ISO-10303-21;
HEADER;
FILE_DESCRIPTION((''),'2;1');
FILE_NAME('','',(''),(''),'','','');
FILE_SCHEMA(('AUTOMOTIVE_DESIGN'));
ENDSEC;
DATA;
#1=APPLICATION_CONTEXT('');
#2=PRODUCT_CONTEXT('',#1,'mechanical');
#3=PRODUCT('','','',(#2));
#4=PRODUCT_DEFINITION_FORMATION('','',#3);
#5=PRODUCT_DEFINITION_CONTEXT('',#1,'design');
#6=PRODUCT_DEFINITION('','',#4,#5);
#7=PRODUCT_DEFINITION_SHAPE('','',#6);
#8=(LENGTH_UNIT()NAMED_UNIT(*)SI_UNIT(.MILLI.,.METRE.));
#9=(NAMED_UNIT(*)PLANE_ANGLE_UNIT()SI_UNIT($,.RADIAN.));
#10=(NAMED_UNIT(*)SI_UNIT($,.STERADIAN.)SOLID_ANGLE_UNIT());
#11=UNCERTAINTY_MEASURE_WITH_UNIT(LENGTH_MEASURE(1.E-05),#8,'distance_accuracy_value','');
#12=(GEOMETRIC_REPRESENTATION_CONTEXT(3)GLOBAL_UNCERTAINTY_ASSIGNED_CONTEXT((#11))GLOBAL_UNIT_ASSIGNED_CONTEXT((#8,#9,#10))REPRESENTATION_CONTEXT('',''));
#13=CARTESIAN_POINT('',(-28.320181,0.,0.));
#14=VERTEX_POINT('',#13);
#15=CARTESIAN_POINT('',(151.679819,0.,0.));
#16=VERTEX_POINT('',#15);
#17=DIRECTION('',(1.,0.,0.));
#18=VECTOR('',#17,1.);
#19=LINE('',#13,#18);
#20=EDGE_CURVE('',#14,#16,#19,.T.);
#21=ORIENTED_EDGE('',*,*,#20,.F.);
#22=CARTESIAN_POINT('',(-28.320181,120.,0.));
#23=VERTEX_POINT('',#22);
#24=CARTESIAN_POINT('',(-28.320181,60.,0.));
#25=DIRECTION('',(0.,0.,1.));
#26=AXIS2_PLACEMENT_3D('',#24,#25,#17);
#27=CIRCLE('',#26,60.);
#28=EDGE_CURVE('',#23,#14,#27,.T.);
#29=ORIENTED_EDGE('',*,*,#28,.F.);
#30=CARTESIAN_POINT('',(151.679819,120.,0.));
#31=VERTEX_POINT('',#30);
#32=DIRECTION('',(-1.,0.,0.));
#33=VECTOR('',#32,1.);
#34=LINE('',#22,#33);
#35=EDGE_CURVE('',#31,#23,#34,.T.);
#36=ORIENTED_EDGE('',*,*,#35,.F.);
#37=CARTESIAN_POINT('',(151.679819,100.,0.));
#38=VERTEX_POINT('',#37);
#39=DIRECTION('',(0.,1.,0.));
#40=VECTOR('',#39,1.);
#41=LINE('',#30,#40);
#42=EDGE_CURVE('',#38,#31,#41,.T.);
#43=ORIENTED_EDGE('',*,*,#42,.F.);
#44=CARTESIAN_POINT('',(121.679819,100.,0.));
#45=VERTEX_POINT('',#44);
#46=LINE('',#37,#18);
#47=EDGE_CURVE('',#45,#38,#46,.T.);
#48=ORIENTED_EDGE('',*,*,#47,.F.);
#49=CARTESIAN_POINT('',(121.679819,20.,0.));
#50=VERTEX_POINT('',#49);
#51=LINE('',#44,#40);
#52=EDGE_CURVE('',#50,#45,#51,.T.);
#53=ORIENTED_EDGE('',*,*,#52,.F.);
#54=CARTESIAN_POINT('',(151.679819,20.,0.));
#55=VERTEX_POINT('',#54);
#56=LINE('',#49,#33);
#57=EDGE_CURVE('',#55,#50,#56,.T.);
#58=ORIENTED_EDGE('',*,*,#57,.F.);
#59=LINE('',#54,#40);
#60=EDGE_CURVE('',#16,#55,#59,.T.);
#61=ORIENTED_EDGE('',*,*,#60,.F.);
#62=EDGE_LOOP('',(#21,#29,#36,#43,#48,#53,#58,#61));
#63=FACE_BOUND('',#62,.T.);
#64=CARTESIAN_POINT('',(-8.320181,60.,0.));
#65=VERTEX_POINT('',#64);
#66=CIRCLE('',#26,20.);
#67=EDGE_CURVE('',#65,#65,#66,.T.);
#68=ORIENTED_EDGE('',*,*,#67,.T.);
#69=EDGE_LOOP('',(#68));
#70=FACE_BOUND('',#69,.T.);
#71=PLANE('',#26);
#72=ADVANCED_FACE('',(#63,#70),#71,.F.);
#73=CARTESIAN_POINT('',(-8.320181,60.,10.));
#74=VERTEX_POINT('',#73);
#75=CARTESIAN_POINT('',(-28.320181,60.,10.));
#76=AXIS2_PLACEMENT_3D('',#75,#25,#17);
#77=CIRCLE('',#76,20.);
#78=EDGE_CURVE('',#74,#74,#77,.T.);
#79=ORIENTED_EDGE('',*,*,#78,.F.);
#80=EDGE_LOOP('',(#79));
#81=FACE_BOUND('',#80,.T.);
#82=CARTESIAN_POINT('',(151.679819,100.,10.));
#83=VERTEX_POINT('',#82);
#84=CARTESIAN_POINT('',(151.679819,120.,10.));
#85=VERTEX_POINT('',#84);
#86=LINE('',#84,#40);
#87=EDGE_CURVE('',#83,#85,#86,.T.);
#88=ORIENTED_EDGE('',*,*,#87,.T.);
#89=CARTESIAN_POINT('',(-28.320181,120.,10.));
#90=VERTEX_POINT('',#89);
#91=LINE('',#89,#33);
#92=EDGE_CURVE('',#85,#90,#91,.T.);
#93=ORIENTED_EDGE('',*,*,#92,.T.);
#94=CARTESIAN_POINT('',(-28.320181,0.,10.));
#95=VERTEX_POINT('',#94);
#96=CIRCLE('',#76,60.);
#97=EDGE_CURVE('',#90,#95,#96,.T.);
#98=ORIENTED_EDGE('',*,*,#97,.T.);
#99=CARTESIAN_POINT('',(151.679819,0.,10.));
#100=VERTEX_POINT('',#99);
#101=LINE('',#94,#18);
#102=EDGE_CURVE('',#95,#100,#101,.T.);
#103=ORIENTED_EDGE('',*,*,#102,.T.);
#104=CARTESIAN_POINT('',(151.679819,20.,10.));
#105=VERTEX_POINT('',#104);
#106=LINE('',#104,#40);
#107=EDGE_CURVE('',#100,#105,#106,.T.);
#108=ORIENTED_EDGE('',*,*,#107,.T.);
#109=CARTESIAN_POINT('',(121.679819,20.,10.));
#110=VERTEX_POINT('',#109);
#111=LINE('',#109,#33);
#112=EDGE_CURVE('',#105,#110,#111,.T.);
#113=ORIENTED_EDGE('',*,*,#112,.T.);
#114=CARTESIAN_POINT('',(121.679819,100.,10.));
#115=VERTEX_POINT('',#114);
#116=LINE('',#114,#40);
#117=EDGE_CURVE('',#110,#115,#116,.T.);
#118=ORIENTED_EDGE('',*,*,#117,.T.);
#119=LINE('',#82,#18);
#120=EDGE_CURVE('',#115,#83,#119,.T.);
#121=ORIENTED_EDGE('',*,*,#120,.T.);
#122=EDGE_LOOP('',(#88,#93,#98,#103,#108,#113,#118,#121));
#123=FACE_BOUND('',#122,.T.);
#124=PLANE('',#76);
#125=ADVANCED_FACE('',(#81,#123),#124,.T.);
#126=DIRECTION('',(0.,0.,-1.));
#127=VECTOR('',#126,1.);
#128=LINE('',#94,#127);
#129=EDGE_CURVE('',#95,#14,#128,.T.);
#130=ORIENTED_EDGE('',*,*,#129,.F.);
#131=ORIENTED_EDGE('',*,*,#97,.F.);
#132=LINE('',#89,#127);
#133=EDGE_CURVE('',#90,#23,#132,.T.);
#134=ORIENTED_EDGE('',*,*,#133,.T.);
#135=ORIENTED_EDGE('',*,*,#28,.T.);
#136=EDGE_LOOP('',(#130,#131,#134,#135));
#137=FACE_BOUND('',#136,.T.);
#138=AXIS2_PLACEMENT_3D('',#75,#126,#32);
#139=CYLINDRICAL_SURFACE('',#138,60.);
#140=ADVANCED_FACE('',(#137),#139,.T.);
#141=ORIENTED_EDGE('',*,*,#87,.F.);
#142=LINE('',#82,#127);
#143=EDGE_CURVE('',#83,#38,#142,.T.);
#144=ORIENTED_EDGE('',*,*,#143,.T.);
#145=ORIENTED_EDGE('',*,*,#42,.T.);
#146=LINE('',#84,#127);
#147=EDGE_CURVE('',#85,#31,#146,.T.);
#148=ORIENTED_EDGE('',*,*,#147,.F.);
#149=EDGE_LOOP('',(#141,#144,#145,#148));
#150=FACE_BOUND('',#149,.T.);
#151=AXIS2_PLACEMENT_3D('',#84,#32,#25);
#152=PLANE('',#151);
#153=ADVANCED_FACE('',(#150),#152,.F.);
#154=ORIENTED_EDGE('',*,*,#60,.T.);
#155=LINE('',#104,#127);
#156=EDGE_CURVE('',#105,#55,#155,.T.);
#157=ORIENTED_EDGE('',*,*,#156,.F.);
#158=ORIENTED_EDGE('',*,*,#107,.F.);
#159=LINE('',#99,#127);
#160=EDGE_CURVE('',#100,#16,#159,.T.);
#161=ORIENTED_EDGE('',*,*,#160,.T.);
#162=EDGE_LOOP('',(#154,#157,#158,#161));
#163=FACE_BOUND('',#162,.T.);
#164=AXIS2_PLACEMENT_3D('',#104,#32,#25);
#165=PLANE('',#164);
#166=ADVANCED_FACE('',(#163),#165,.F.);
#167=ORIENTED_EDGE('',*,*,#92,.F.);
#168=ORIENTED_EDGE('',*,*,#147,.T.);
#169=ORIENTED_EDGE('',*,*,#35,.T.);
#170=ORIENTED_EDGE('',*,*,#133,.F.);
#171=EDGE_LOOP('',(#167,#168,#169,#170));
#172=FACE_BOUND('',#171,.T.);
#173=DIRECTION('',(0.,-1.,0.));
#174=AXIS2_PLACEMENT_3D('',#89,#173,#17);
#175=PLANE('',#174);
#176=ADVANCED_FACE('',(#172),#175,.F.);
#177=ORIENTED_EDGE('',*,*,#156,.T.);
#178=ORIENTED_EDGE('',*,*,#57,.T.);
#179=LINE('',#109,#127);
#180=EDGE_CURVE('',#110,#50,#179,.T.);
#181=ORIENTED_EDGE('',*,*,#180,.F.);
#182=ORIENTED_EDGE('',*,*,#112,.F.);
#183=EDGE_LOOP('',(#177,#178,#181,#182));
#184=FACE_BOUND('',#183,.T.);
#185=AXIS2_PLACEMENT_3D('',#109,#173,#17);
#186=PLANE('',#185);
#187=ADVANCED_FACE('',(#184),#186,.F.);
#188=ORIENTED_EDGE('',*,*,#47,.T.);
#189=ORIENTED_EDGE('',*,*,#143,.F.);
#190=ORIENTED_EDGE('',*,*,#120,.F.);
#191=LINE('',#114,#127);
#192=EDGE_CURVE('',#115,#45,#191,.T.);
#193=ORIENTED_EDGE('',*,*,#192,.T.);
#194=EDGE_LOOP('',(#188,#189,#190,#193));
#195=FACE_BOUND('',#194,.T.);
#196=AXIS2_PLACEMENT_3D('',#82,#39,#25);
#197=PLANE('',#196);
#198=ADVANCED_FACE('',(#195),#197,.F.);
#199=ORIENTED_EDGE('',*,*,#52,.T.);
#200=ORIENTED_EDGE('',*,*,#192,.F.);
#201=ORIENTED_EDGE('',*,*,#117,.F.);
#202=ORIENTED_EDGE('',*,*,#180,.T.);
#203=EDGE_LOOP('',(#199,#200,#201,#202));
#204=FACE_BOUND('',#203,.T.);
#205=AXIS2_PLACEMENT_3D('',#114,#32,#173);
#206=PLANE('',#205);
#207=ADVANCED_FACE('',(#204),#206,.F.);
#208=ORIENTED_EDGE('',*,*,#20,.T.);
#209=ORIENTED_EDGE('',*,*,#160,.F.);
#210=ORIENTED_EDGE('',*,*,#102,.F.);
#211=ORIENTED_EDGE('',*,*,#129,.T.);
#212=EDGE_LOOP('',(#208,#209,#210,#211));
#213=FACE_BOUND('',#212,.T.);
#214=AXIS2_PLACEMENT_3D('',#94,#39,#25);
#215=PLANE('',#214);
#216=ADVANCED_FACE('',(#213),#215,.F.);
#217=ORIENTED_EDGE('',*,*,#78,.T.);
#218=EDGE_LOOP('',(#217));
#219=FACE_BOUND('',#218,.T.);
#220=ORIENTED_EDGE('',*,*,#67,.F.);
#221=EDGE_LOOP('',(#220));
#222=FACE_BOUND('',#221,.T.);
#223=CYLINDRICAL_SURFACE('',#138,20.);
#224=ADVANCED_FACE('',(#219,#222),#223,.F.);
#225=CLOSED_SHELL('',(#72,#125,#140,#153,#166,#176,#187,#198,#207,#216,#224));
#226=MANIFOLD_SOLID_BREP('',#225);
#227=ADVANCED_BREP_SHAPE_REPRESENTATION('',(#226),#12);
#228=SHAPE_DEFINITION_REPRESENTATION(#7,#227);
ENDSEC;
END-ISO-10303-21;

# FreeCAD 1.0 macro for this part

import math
import FreeCAD as App
import Part
import Sketcher
Q = App.Units.Quantity

doc = App.newDocument("Part")
body = doc.addObject("PartDesign::Body", "Body")

sketch1 = doc.addObject("Sketcher::SketchObject", "Sketch")
body.addObject(sketch1)
sketch1.AttachmentSupport = (doc.XY_Plane, [""])
sketch1.MapMode = "FlatFace"
sketch1.addGeometry([
    Part.LineSegment(App.Vector(-28, 0, 0), App.Vector(152, 0, 0)),
    Part.LineSegment(App.Vector(152, 0, 0), App.Vector(152, 20, 0)),
    Part.LineSegment(App.Vector(152, 20, 0), App.Vector(122, 20, 0)),
    Part.LineSegment(App.Vector(122, 20, 0), App.Vector(122, 100, 0)),
    Part.LineSegment(App.Vector(122, 100, 0), App.Vector(152, 100, 0)),
    Part.LineSegment(App.Vector(152, 100, 0), App.Vector(152, 120, 0)),
    Part.LineSegment(App.Vector(152, 120, 0), App.Vector(-28, 120, 0)),
    Part.ArcOfCircle(Part.Circle(App.Vector(-28, 60, 0), App.Vector(0, 0, 1), 60), math.radians(90), math.radians(270)),
    Part.Circle(App.Vector(-28, 60, 0), App.Vector(0, 0, 1), 20),
], False)
sketch1.addConstraint([
    Sketcher.Constraint("Coincident", 0, 2, 1, 1),
    Sketcher.Constraint("Coincident", 1, 2, 2, 1),
    Sketcher.Constraint("Coincident", 2, 2, 3, 1),
    Sketcher.Constraint("Coincident", 3, 2, 4, 1),
    Sketcher.Constraint("Coincident", 4, 2, 5, 1),
    Sketcher.Constraint("Coincident", 5, 2, 6, 1),
    Sketcher.Constraint("Tangent", 6, 2, 7, 1),
    Sketcher.Constraint("Tangent", 7, 2, 0, 1),
    Sketcher.Constraint("Horizontal", 0),
    Sketcher.Constraint("Vertical", 1),
    Sketcher.Constraint("Horizontal", 2),
    Sketcher.Constraint("Vertical", 3),
    Sketcher.Constraint("Horizontal", 4),
    Sketcher.Constraint("Vertical", 5),
    Sketcher.Constraint("Horizontal", 6),
    Sketcher.Constraint("Coincident", 8, 3, 7, 3),
    Sketcher.Constraint("PointOnObject", 0, 2, -1),
    Sketcher.Constraint("Vertical", 1, 2, 4, 2),
    Sketcher.Constraint("Equal", 1, 5),
    Sketcher.Constraint("Diameter", 8, Q("40 mm")),
    Sketcher.Constraint("Radius", 7, Q("60 mm")),
    Sketcher.Constraint("DistanceX", 0, 1, 0, 2, Q("180 mm")),
    Sketcher.Constraint("DistanceX", 2, 2, 2, 1, Q("30 mm")),
    Sketcher.Constraint("DistanceY", 1, 1, 1, 2, Q("20 mm")),
    Sketcher.Constraint("DistanceX", 7, 3, -1, 1, Q("28.320181 mm")),
])
pad1 = doc.addObject("PartDesign::Pad", "Pad")
body.addObject(pad1)
pad1.Profile = sketch1
pad1.Length = 10

doc.recompute()
